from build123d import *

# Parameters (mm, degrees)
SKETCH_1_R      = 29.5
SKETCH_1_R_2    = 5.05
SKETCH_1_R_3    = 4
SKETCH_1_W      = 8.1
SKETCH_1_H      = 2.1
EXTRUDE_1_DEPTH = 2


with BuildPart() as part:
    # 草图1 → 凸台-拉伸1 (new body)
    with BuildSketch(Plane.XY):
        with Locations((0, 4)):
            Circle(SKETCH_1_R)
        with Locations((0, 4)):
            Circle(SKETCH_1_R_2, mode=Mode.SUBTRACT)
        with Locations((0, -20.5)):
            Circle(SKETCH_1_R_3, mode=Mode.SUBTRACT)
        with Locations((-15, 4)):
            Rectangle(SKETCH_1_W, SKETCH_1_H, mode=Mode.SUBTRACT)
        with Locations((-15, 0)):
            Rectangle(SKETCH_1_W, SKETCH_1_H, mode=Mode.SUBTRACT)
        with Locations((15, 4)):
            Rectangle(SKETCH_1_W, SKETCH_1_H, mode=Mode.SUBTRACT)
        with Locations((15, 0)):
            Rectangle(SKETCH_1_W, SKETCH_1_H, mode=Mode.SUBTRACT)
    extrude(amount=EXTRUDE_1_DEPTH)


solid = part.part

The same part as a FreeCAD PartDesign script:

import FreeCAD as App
import Part
import Sketcher


def add_polygon(sketch, points):
    """Adds a closed chain of lines whose ends are joined by coincident constraints."""
    first, n = sketch.GeometryCount, len(points)
    for a, b in zip(points, points[1:] + points[:1]):
        sketch.addGeometry(Part.LineSegment(App.Vector(*a, 0), App.Vector(*b, 0)), False)
    for i in range(n):
        sketch.addConstraint(Sketcher.Constraint("Coincident", first + i, 2, first + (i + 1) % n, 1))

doc = App.newDocument("Part")
body = doc.addObject("PartDesign::Body", "Body")

sketch1 = doc.addObject("Sketcher::SketchObject", "Sketch")
body.addObject(sketch1)
sketch1.AttachmentSupport = (doc.XY_Plane, [""])
sketch1.MapMode = "FlatFace"
sketch1.addGeometry(Part.Circle(App.Vector(0, 4, 0), App.Vector(0, 0, 1), 29.5), False)
sketch1.addGeometry(Part.Circle(App.Vector(0, -20.5, 0), App.Vector(0, 0, 1), 4), False)
add_polygon(sketch1, [(-10.9, -1.1), (-19.1, -1.1), (-19.1, 1.1), (-10.9, 1.1)])
add_polygon(sketch1, [(-10.9, 3), (-19.1, 3), (-19.1, 5), (-10.9, 5)])
add_polygon(sketch1, [(19.1, -1.1), (10.9, -1.1), (10.9, 1.1), (19.1, 1.1)])
sketch1.addGeometry(Part.Circle(App.Vector(0, 4, 0), App.Vector(0, 0, 1), 5), False)
add_polygon(sketch1, [(19.1, 3), (10.9, 3), (10.9, 5), (19.1, 5)])
sketch1.addConstraint([
    Sketcher.Constraint("Horizontal", 2),
    Sketcher.Constraint("Vertical", 3),
    Sketcher.Constraint("Horizontal", 4),
    Sketcher.Constraint("Vertical", 5),
    Sketcher.Constraint("Horizontal", 6),
    Sketcher.Constraint("Vertical", 7),
    Sketcher.Constraint("Horizontal", 8),
    Sketcher.Constraint("Vertical", 9),
    Sketcher.Constraint("Horizontal", 10),
    Sketcher.Constraint("Vertical", 11),
    Sketcher.Constraint("Horizontal", 12),
    Sketcher.Constraint("Vertical", 13),
    Sketcher.Constraint("Horizontal", 15),
    Sketcher.Constraint("Vertical", 16),
    Sketcher.Constraint("Horizontal", 17),
    Sketcher.Constraint("Vertical", 18),
    Sketcher.Constraint("Coincident", 14, 3, 0, 3),
    Sketcher.Constraint("Symmetric", 4, 2, 10, 2, -1, 1),
    Sketcher.Constraint("Symmetric", 2, 2, 12, 2, -1, 1),
    Sketcher.Constraint("Symmetric", 9, 2, 15, 2, -2),
    Sketcher.Constraint("Symmetric", 7, 2, 17, 2, -2),
    Sketcher.Constraint("PointOnObject", 0, 3, -2),
    Sketcher.Constraint("PointOnObject", 1, 3, -2),
    Sketcher.Constraint("Horizontal", 5, 2, 10, 2),
    Sketcher.Constraint("Vertical", 3, 2, 6, 2),
    Sketcher.Constraint("Vertical", 5, 2, 8, 2),
    Sketcher.Constraint("Equal", 5, 7),
    Sketcher.Constraint("Diameter", 0, 59.0),
    Sketcher.Constraint("Diameter", 1, 8.0),
    Sketcher.Constraint("Diameter", 14, 10.1),
    Sketcher.Constraint("DistanceX", 2, 2, 2, 1, 8.1),
    Sketcher.Constraint("DistanceY", 3, 1, 3, 2, 2.1),
    Sketcher.Constraint("DistanceY", -1, 1, 0, 3, 4.0),
    Sketcher.Constraint("DistanceY", 2, 2, 6, 2, 4.0),
    Sketcher.Constraint("DistanceY", 1, 3, -1, 1, 20.5),
    Sketcher.Constraint("DistanceX", 5, 2, 10, 2, 21.9),
])
pad1 = doc.addObject("PartDesign::Pad", "Pad")
body.addObject(pad1)
pad1.Profile = sketch1
pad1.Length = 2

doc.recompute()
